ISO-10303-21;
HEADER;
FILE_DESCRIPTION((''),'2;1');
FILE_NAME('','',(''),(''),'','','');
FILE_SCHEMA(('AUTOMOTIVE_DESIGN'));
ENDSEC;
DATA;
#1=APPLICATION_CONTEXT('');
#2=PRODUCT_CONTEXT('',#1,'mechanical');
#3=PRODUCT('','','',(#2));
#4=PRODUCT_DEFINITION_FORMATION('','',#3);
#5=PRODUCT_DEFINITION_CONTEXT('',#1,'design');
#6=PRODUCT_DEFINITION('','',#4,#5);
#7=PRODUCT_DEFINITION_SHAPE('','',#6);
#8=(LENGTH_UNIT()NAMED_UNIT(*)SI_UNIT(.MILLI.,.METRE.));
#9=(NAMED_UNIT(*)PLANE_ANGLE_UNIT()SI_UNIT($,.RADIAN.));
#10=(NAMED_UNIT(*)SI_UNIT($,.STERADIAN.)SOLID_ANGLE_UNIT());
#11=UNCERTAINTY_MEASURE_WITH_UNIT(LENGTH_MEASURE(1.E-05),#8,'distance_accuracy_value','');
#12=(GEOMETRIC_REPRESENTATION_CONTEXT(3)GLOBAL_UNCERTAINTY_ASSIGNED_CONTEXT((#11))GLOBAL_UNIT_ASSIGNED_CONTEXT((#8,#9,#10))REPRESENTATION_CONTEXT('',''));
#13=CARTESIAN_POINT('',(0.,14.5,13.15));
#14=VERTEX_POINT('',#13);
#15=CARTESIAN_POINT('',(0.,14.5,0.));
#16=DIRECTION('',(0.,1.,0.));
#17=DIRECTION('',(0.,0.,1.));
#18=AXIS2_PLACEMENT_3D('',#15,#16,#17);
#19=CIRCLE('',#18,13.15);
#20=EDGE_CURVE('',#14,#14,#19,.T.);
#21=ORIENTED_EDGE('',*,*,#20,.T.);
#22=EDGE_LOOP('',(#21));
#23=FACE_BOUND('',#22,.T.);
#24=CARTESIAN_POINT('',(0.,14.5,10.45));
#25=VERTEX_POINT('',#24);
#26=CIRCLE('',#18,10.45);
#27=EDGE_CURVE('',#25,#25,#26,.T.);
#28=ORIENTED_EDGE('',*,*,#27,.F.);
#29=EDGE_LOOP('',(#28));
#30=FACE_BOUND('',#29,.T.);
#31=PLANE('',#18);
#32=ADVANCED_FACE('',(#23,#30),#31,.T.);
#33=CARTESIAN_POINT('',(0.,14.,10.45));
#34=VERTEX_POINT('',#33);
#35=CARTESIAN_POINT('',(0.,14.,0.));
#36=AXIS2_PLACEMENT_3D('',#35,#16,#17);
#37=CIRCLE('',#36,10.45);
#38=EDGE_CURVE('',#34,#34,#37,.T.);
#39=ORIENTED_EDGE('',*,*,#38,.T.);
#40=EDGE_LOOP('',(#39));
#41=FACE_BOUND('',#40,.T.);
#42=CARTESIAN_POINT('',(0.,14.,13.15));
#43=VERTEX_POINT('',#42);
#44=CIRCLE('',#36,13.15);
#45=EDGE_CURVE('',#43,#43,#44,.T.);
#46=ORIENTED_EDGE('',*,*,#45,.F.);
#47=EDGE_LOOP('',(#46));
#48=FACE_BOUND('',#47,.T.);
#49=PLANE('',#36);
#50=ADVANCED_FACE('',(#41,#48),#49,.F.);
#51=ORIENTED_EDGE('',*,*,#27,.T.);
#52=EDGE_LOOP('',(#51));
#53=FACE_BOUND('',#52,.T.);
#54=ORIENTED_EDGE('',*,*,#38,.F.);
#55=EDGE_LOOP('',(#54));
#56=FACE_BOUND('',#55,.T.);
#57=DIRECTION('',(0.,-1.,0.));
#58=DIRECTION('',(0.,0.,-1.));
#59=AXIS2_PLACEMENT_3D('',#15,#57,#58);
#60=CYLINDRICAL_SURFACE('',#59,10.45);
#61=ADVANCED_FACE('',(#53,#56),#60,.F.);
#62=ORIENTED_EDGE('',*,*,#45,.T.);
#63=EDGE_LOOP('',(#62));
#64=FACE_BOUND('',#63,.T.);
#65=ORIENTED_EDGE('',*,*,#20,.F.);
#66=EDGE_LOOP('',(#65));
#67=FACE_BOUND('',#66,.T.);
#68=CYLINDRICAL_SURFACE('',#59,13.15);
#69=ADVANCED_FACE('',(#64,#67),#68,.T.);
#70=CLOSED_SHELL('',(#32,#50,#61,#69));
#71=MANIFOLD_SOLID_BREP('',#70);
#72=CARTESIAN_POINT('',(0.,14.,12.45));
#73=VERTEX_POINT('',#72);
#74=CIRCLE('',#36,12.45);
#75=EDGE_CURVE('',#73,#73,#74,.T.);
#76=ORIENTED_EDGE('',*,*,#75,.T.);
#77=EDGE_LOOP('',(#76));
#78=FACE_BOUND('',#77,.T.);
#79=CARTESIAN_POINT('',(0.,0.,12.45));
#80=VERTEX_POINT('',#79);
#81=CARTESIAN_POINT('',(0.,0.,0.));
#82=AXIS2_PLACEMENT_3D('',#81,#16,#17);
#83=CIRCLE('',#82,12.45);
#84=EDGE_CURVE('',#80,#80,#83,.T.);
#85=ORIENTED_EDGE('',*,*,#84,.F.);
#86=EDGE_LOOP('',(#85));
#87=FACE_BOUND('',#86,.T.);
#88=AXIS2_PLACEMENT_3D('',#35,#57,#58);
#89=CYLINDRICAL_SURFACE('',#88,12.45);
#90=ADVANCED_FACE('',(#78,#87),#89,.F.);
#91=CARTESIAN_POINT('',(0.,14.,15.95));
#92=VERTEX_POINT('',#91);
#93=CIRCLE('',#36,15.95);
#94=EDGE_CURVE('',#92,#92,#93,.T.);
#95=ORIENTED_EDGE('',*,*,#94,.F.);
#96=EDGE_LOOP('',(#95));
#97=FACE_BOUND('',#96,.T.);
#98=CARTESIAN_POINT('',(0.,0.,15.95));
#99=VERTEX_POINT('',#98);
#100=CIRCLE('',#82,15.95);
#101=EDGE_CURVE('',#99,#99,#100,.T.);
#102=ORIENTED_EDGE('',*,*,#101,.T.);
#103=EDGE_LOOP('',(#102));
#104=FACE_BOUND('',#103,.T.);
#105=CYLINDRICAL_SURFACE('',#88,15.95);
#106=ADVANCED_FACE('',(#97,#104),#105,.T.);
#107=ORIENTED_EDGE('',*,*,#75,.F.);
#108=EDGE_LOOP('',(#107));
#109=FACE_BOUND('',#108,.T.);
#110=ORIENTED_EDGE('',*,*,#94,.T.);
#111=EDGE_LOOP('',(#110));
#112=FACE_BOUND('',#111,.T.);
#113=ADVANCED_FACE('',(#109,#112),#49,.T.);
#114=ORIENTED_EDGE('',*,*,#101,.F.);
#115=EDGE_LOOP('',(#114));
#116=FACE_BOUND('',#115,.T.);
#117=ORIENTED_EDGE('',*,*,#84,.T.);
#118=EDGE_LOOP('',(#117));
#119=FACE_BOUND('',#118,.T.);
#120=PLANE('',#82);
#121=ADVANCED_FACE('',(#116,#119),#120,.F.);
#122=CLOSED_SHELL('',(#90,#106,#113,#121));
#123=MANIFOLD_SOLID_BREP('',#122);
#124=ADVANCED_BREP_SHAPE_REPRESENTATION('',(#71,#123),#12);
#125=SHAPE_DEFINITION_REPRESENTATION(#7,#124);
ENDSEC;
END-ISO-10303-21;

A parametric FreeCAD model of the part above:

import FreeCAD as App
import Part
import Sketcher
from FreeCAD import Vector
Q = App.Units.Quantity

doc = App.newDocument("Part")
params = doc.addObject("Spreadsheet::Sheet", "Params")
for row, (alias, value) in enumerate([
    ("sketch1_diameter", "31.9 mm"),
    ("sketch1_diameter2", "24.9 mm"),
    ("pad1_length", "14 mm"),
    ("sketch2_diameter", "26.3 mm"),
    ("sketch2_diameter2", "20.9 mm"),
    ("pad2_length", "0.5 mm"),
], start=1):
    params.set(f"A{row}", alias)
    params.set(f"B{row}", "=" + value)
    params.setAlias(f"B{row}", alias)

body = doc.addObject("PartDesign::Body", "Body")

sketch1 = body.newObject("Sketcher::SketchObject", "Sketch")
sketch1.AttachmentSupport = (doc.getObject("XZ_Plane"), [""])
sketch1.MapMode = "FlatFace"
sketch1.addGeometry([
    Part.Circle(Vector(0, 0, 0), Vector(0, 0, 1), 15.95),
    Part.Circle(Vector(0, 0, 0), Vector(0, 0, 1), 12.45),
], False)
sketch1.addConstraint([
    Sketcher.Constraint("Coincident", 0, 3, -1, 1),
    Sketcher.Constraint("Coincident", 1, 3, -1, 1),
    Sketcher.Constraint("Diameter", 0, Q("31.9 mm")),
    Sketcher.Constraint("Diameter", 1, Q("24.9 mm")),
])
sketch1.setExpression("Constraints[2]", "Params.sketch1_diameter")
sketch1.setExpression("Constraints[3]", "Params.sketch1_diameter2")
pad1 = body.newObject("PartDesign::Pad", "Pad")
pad1.Profile = sketch1
pad1.setExpression("Length", "Params.pad1_length")
pad1.Reversed = True
body2 = doc.addObject("PartDesign::Body", "Body001")

sketch2 = body2.newObject("Sketcher::SketchObject", "Sketch001")
sketch2.AttachmentSupport = (doc.getObject("XZ_Plane001"), [""])
sketch2.MapMode = "FlatFace"
sketch2.AttachmentOffset = App.Placement(Vector(0, 0, -14), App.Rotation())
sketch2.addGeometry([
    Part.Circle(Vector(0, 0, 0), Vector(0, 0, 1), 13.15),
    Part.Circle(Vector(0, 0, 0), Vector(0, 0, 1), 10.45),
], False)
sketch2.addConstraint([
    Sketcher.Constraint("Coincident", 0, 3, -1, 1),
    Sketcher.Constraint("Coincident", 1, 3, -1, 1),
    Sketcher.Constraint("Diameter", 0, Q("26.3 mm")),
    Sketcher.Constraint("Diameter", 1, Q("20.9 mm")),
])
sketch2.setExpression("Constraints[2]", "Params.sketch2_diameter")
sketch2.setExpression("Constraints[3]", "Params.sketch2_diameter2")
pad2 = body2.newObject("PartDesign::Pad", "Pad001")
pad2.Profile = sketch2
pad2.setExpression("Length", "Params.pad2_length")
pad2.Reversed = True

doc.recompute()
